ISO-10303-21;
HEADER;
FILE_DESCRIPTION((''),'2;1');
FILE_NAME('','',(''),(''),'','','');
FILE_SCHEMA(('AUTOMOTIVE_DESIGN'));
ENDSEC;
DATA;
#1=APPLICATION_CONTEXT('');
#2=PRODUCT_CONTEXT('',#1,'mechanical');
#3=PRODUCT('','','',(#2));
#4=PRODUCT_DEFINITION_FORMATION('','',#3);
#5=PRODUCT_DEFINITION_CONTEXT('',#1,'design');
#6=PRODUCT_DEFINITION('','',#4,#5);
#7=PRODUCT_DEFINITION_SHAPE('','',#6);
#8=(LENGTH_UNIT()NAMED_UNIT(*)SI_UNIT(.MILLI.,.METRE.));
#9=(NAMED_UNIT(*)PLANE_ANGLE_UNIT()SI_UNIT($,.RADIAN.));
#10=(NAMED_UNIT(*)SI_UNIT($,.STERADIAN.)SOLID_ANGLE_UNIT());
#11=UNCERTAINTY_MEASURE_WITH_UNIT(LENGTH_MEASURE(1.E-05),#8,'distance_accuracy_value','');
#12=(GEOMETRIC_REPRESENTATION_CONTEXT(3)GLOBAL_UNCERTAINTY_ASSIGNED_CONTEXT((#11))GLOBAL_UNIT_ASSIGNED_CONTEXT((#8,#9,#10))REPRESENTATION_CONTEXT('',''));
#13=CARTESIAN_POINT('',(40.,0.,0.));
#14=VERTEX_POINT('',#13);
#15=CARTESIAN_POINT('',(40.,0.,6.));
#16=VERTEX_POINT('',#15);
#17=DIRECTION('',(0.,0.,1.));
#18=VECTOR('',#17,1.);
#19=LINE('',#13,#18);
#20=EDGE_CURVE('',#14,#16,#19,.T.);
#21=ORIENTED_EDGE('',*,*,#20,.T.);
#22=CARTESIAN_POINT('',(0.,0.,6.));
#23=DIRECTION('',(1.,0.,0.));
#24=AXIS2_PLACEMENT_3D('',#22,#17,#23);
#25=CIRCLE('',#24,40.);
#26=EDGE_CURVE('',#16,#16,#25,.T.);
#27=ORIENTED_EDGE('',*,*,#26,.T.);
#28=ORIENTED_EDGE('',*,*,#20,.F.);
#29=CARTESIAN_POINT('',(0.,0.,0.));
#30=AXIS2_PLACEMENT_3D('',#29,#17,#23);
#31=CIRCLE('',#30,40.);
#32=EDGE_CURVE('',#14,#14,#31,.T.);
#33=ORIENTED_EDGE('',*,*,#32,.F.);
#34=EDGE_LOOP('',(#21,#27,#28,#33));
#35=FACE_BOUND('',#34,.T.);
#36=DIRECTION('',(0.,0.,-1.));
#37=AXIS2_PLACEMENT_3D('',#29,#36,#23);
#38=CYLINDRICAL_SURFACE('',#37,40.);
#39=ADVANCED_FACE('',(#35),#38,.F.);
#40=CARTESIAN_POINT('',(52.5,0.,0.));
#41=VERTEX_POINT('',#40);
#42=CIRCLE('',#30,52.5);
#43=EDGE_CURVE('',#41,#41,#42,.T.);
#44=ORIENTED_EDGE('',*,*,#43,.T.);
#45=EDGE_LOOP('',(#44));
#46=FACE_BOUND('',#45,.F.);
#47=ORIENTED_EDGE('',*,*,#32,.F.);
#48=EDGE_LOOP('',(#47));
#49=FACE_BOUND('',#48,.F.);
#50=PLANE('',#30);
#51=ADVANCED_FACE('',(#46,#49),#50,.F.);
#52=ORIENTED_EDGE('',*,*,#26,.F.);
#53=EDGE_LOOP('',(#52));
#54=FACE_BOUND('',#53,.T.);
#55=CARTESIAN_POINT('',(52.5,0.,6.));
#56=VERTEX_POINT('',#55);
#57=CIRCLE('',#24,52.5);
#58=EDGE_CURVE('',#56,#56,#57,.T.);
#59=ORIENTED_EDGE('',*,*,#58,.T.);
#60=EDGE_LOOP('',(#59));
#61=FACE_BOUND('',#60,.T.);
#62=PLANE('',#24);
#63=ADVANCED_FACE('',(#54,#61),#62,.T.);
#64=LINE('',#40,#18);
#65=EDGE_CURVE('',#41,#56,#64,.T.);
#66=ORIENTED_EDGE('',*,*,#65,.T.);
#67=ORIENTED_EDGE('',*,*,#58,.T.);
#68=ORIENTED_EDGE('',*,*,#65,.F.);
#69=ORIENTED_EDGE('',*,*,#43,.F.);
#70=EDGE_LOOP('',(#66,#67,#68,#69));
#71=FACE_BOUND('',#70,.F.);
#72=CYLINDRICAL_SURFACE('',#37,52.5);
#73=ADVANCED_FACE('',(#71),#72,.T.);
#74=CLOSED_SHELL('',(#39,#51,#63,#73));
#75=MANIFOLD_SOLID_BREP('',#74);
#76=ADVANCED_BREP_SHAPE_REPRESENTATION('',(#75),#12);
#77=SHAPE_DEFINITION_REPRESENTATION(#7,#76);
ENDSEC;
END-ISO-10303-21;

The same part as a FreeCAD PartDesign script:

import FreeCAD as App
import Part
import Sketcher
from FreeCAD import Vector

doc = App.newDocument("Part")
body = doc.addObject("PartDesign::Body", "Body")

sketch1 = body.newObject("Sketcher::SketchObject", "Sketch")
sketch1.AttachmentSupport = (doc.getObject("XY_Plane"), [""])
sketch1.MapMode = "FlatFace"
sketch1.addGeometry([
    Part.Circle(Vector(0, 0, 0), Vector(0, 0, 1), 52.5),
    Part.Circle(Vector(0, 0, 0), Vector(0, 0, 1), 40),
], False)
sketch1.addConstraint([
    Sketcher.Constraint("Coincident", 0, 3, -1, 1),
    Sketcher.Constraint("Coincident", 1, 3, -1, 1),
    Sketcher.Constraint("Diameter", 0, 105.0),
    Sketcher.Constraint("Diameter", 1, 80.0),
])
pad1 = body.newObject("PartDesign::Pad", "Pad")
pad1.Profile = sketch1
pad1.Length = 6

doc.recompute()
